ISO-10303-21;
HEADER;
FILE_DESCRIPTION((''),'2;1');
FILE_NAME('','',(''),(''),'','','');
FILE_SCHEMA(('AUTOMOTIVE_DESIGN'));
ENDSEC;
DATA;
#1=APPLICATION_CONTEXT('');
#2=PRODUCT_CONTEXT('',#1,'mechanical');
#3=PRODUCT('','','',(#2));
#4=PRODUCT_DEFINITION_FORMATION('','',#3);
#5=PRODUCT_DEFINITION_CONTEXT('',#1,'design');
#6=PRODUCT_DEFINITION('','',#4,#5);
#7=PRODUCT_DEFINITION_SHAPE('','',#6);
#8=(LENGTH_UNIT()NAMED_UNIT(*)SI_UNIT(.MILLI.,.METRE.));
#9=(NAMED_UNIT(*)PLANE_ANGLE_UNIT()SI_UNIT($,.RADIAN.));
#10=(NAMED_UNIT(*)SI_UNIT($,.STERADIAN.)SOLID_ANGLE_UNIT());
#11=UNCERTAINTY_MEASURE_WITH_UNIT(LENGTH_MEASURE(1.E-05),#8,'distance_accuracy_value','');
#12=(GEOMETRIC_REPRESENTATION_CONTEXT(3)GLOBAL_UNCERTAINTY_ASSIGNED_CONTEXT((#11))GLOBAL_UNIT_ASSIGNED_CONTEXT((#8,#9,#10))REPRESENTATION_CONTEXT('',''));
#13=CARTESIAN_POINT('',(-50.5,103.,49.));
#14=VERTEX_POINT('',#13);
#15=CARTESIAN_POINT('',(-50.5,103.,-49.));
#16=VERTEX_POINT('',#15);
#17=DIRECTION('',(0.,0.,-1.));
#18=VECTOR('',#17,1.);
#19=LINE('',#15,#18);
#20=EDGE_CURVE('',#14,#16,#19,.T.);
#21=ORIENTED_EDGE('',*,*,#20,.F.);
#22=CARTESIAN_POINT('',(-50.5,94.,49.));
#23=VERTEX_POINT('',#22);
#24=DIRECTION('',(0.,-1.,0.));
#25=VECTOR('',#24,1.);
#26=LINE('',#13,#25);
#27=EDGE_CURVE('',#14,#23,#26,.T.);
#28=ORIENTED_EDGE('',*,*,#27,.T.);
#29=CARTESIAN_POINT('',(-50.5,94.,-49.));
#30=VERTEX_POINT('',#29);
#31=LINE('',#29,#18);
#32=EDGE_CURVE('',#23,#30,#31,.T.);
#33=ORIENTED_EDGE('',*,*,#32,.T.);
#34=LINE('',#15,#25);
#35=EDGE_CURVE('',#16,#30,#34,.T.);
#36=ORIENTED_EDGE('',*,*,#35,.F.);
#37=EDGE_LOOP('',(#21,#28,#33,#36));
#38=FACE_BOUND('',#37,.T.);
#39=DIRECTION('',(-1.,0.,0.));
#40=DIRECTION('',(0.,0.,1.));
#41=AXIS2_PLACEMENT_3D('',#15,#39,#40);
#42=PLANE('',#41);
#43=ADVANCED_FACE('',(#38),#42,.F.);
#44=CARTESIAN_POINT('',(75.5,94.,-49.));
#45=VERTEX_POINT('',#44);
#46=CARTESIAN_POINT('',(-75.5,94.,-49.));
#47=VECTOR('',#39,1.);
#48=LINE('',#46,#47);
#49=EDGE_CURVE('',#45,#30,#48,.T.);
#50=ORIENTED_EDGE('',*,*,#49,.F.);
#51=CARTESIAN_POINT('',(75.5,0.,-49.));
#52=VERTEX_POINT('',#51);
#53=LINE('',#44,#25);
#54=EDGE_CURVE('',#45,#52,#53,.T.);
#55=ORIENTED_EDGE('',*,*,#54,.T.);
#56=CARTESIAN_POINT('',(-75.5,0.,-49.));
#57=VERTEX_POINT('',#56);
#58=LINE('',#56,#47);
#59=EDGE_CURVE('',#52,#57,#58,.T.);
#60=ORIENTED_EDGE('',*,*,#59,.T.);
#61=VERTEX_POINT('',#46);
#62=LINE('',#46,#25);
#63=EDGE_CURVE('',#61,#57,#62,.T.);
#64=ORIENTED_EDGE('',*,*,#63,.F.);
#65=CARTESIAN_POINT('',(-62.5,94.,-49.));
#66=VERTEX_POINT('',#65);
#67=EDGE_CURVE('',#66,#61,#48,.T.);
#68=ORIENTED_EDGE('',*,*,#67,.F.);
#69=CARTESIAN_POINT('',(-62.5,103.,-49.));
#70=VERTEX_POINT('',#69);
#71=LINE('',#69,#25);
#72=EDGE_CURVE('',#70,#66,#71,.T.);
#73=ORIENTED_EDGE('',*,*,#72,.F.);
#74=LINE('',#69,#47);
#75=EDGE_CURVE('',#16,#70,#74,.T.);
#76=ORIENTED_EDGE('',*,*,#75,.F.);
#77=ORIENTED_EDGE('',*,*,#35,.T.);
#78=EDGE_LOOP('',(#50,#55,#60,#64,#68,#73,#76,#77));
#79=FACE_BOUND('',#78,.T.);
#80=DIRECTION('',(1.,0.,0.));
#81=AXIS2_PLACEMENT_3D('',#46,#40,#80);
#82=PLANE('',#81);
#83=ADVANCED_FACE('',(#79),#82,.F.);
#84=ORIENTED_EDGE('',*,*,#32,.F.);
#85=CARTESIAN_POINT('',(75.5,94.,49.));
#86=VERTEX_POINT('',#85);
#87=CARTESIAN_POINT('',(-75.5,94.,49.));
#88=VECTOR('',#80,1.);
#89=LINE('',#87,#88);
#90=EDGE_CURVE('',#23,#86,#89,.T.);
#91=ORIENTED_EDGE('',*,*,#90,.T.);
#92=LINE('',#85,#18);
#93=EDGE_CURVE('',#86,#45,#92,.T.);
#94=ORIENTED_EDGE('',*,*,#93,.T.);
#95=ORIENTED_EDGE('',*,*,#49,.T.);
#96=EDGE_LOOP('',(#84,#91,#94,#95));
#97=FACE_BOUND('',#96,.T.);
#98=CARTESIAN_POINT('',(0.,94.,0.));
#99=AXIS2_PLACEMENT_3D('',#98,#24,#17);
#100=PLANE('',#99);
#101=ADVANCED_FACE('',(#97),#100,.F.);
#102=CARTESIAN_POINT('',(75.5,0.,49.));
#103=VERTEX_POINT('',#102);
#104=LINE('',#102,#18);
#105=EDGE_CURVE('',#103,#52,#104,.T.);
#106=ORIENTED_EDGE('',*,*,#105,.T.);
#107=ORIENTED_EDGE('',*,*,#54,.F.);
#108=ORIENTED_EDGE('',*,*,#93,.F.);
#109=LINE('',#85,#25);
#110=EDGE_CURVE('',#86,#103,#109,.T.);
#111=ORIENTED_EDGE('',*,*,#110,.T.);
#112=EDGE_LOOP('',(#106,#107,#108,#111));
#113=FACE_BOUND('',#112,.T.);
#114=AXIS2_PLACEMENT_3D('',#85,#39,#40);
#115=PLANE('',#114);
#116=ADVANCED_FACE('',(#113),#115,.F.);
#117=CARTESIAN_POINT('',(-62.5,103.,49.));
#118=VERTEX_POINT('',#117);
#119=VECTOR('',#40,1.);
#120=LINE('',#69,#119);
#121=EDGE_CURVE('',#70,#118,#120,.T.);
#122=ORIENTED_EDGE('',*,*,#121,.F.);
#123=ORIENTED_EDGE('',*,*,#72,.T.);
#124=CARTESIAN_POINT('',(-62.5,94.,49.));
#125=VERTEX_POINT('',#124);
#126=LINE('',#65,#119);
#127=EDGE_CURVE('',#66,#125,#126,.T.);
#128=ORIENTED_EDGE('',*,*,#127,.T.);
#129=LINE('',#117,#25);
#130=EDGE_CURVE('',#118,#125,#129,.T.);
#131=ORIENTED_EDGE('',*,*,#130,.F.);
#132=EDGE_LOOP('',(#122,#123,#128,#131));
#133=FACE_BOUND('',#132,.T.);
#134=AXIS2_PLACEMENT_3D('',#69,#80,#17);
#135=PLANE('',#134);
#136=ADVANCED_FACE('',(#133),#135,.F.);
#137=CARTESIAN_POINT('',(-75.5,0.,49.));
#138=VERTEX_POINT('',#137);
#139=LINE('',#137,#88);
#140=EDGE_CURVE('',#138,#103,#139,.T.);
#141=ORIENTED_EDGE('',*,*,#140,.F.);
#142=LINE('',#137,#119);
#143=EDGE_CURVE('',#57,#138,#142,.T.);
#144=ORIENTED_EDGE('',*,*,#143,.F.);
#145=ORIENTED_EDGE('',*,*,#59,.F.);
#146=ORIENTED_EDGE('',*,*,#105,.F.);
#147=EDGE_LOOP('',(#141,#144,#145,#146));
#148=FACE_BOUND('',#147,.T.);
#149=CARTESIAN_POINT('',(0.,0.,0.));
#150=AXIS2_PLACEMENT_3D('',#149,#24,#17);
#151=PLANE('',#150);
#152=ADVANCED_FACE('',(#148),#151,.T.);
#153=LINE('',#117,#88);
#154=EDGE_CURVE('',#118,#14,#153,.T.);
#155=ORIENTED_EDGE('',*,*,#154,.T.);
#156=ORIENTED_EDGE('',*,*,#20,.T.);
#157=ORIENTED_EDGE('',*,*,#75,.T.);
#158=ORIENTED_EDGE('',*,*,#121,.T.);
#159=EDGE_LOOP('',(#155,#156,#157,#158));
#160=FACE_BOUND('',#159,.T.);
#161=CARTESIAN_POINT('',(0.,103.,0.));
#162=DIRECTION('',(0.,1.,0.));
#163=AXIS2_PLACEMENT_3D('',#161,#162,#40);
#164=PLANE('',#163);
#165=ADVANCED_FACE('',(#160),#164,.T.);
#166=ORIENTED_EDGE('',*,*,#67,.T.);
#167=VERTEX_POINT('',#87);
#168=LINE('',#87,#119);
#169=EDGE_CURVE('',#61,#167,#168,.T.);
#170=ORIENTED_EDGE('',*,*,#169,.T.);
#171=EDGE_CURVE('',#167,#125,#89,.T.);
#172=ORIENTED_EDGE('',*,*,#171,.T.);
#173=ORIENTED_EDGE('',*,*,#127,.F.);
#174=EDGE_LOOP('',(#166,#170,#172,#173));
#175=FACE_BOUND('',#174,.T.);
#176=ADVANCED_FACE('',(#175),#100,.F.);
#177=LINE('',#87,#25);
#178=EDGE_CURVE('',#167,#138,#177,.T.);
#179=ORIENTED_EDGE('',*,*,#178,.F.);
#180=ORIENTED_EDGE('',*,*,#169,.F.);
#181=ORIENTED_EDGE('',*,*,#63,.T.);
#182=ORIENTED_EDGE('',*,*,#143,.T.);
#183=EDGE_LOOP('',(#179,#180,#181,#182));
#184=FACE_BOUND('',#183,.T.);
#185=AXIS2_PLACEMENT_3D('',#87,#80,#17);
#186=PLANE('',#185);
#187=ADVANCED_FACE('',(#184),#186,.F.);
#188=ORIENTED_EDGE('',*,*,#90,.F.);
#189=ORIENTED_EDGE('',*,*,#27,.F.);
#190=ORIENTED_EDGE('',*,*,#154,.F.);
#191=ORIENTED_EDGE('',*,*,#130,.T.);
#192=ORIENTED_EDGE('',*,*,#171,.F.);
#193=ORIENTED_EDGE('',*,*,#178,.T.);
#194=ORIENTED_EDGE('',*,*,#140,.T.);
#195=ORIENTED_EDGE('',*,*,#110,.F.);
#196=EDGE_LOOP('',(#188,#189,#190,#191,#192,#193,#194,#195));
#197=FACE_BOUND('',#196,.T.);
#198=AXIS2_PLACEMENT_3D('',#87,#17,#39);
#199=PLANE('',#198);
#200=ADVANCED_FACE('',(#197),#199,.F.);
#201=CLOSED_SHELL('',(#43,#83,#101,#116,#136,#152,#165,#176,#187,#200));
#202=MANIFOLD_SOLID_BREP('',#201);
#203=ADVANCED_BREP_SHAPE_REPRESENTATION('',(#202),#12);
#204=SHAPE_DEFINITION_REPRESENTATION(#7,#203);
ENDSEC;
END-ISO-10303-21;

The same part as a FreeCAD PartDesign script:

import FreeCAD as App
import Part
import Sketcher

doc = App.newDocument("Part")
body = doc.addObject("PartDesign::Body", "Body")

sketch1 = doc.addObject("Sketcher::SketchObject", "Sketch")
body.addObject(sketch1)
sketch1.AttachmentSupport = (doc.XZ_Plane, [""])
sketch1.MapMode = "FlatFace"
sketch1.addGeometry([
    Part.LineSegment(App.Vector(-75.5, -49, 0), App.Vector(-75.5, 49, 0)),
    Part.LineSegment(App.Vector(-75.5, 49, 0), App.Vector(75.5, 49, 0)),
    Part.LineSegment(App.Vector(75.5, 49, 0), App.Vector(75.5, -49, 0)),
    Part.LineSegment(App.Vector(75.5, -49, 0), App.Vector(-75.5, -49, 0)),
], False)
sketch1.addConstraint([
    Sketcher.Constraint("Coincident", 0, 2, 1, 1),
    Sketcher.Constraint("Coincident", 1, 2, 2, 1),
    Sketcher.Constraint("Coincident", 2, 2, 3, 1),
    Sketcher.Constraint("Coincident", 3, 2, 0, 1),
    Sketcher.Constraint("Vertical", 0),
    Sketcher.Constraint("Horizontal", 1),
    Sketcher.Constraint("Vertical", 2),
    Sketcher.Constraint("Horizontal", 3),
    Sketcher.Constraint("Symmetric", 0, 2, 2, 2, -1, 1),
    Sketcher.Constraint("DistanceX", 1, 1, 1, 2, 151.0),
    Sketcher.Constraint("DistanceY", 0, 1, 0, 2, 98.0),
])
pad1 = doc.addObject("PartDesign::Pad", "Pad")
body.addObject(pad1)
pad1.Profile = sketch1
pad1.Length = 94
pad1.Reversed = True

sketch2 = doc.addObject("Sketcher::SketchObject", "Sketch001")
body.addObject(sketch2)
sketch2.AttachmentSupport = (doc.XZ_Plane, [""])
sketch2.MapMode = "FlatFace"
sketch2.AttachmentOffset = App.Placement(App.Vector(0, 0, -94), App.Rotation())
sketch2.addGeometry([
    Part.LineSegment(App.Vector(-62.5, -49, 0), App.Vector(-62.5, 49, 0)),
    Part.LineSegment(App.Vector(-62.5, 49, 0), App.Vector(-50.5, 49, 0)),
    Part.LineSegment(App.Vector(-50.5, 49, 0), App.Vector(-50.5, -49, 0)),
    Part.LineSegment(App.Vector(-50.5, -49, 0), App.Vector(-62.5, -49, 0)),
], False)
sketch2.addConstraint([
    Sketcher.Constraint("Coincident", 0, 2, 1, 1),
    Sketcher.Constraint("Coincident", 1, 2, 2, 1),
    Sketcher.Constraint("Coincident", 2, 2, 3, 1),
    Sketcher.Constraint("Coincident", 3, 2, 0, 1),
    Sketcher.Constraint("Vertical", 0),
    Sketcher.Constraint("Horizontal", 1),
    Sketcher.Constraint("Vertical", 2),
    Sketcher.Constraint("Horizontal", 3),
    Sketcher.Constraint("DistanceX", 1, 1, 1, 2, 12.0),
    Sketcher.Constraint("DistanceY", 0, 1, 0, 2, 98.0),
    Sketcher.Constraint("DistanceY", -1, 1, 0, 2, 49.0),
    Sketcher.Constraint("DistanceX", 0, 2, -1, 1, 62.5),
])
pad2 = doc.addObject("PartDesign::Pad", "Pad001")
body.addObject(pad2)
pad2.Profile = sketch2
pad2.Length = 9
pad2.Reversed = True

doc.recompute()
